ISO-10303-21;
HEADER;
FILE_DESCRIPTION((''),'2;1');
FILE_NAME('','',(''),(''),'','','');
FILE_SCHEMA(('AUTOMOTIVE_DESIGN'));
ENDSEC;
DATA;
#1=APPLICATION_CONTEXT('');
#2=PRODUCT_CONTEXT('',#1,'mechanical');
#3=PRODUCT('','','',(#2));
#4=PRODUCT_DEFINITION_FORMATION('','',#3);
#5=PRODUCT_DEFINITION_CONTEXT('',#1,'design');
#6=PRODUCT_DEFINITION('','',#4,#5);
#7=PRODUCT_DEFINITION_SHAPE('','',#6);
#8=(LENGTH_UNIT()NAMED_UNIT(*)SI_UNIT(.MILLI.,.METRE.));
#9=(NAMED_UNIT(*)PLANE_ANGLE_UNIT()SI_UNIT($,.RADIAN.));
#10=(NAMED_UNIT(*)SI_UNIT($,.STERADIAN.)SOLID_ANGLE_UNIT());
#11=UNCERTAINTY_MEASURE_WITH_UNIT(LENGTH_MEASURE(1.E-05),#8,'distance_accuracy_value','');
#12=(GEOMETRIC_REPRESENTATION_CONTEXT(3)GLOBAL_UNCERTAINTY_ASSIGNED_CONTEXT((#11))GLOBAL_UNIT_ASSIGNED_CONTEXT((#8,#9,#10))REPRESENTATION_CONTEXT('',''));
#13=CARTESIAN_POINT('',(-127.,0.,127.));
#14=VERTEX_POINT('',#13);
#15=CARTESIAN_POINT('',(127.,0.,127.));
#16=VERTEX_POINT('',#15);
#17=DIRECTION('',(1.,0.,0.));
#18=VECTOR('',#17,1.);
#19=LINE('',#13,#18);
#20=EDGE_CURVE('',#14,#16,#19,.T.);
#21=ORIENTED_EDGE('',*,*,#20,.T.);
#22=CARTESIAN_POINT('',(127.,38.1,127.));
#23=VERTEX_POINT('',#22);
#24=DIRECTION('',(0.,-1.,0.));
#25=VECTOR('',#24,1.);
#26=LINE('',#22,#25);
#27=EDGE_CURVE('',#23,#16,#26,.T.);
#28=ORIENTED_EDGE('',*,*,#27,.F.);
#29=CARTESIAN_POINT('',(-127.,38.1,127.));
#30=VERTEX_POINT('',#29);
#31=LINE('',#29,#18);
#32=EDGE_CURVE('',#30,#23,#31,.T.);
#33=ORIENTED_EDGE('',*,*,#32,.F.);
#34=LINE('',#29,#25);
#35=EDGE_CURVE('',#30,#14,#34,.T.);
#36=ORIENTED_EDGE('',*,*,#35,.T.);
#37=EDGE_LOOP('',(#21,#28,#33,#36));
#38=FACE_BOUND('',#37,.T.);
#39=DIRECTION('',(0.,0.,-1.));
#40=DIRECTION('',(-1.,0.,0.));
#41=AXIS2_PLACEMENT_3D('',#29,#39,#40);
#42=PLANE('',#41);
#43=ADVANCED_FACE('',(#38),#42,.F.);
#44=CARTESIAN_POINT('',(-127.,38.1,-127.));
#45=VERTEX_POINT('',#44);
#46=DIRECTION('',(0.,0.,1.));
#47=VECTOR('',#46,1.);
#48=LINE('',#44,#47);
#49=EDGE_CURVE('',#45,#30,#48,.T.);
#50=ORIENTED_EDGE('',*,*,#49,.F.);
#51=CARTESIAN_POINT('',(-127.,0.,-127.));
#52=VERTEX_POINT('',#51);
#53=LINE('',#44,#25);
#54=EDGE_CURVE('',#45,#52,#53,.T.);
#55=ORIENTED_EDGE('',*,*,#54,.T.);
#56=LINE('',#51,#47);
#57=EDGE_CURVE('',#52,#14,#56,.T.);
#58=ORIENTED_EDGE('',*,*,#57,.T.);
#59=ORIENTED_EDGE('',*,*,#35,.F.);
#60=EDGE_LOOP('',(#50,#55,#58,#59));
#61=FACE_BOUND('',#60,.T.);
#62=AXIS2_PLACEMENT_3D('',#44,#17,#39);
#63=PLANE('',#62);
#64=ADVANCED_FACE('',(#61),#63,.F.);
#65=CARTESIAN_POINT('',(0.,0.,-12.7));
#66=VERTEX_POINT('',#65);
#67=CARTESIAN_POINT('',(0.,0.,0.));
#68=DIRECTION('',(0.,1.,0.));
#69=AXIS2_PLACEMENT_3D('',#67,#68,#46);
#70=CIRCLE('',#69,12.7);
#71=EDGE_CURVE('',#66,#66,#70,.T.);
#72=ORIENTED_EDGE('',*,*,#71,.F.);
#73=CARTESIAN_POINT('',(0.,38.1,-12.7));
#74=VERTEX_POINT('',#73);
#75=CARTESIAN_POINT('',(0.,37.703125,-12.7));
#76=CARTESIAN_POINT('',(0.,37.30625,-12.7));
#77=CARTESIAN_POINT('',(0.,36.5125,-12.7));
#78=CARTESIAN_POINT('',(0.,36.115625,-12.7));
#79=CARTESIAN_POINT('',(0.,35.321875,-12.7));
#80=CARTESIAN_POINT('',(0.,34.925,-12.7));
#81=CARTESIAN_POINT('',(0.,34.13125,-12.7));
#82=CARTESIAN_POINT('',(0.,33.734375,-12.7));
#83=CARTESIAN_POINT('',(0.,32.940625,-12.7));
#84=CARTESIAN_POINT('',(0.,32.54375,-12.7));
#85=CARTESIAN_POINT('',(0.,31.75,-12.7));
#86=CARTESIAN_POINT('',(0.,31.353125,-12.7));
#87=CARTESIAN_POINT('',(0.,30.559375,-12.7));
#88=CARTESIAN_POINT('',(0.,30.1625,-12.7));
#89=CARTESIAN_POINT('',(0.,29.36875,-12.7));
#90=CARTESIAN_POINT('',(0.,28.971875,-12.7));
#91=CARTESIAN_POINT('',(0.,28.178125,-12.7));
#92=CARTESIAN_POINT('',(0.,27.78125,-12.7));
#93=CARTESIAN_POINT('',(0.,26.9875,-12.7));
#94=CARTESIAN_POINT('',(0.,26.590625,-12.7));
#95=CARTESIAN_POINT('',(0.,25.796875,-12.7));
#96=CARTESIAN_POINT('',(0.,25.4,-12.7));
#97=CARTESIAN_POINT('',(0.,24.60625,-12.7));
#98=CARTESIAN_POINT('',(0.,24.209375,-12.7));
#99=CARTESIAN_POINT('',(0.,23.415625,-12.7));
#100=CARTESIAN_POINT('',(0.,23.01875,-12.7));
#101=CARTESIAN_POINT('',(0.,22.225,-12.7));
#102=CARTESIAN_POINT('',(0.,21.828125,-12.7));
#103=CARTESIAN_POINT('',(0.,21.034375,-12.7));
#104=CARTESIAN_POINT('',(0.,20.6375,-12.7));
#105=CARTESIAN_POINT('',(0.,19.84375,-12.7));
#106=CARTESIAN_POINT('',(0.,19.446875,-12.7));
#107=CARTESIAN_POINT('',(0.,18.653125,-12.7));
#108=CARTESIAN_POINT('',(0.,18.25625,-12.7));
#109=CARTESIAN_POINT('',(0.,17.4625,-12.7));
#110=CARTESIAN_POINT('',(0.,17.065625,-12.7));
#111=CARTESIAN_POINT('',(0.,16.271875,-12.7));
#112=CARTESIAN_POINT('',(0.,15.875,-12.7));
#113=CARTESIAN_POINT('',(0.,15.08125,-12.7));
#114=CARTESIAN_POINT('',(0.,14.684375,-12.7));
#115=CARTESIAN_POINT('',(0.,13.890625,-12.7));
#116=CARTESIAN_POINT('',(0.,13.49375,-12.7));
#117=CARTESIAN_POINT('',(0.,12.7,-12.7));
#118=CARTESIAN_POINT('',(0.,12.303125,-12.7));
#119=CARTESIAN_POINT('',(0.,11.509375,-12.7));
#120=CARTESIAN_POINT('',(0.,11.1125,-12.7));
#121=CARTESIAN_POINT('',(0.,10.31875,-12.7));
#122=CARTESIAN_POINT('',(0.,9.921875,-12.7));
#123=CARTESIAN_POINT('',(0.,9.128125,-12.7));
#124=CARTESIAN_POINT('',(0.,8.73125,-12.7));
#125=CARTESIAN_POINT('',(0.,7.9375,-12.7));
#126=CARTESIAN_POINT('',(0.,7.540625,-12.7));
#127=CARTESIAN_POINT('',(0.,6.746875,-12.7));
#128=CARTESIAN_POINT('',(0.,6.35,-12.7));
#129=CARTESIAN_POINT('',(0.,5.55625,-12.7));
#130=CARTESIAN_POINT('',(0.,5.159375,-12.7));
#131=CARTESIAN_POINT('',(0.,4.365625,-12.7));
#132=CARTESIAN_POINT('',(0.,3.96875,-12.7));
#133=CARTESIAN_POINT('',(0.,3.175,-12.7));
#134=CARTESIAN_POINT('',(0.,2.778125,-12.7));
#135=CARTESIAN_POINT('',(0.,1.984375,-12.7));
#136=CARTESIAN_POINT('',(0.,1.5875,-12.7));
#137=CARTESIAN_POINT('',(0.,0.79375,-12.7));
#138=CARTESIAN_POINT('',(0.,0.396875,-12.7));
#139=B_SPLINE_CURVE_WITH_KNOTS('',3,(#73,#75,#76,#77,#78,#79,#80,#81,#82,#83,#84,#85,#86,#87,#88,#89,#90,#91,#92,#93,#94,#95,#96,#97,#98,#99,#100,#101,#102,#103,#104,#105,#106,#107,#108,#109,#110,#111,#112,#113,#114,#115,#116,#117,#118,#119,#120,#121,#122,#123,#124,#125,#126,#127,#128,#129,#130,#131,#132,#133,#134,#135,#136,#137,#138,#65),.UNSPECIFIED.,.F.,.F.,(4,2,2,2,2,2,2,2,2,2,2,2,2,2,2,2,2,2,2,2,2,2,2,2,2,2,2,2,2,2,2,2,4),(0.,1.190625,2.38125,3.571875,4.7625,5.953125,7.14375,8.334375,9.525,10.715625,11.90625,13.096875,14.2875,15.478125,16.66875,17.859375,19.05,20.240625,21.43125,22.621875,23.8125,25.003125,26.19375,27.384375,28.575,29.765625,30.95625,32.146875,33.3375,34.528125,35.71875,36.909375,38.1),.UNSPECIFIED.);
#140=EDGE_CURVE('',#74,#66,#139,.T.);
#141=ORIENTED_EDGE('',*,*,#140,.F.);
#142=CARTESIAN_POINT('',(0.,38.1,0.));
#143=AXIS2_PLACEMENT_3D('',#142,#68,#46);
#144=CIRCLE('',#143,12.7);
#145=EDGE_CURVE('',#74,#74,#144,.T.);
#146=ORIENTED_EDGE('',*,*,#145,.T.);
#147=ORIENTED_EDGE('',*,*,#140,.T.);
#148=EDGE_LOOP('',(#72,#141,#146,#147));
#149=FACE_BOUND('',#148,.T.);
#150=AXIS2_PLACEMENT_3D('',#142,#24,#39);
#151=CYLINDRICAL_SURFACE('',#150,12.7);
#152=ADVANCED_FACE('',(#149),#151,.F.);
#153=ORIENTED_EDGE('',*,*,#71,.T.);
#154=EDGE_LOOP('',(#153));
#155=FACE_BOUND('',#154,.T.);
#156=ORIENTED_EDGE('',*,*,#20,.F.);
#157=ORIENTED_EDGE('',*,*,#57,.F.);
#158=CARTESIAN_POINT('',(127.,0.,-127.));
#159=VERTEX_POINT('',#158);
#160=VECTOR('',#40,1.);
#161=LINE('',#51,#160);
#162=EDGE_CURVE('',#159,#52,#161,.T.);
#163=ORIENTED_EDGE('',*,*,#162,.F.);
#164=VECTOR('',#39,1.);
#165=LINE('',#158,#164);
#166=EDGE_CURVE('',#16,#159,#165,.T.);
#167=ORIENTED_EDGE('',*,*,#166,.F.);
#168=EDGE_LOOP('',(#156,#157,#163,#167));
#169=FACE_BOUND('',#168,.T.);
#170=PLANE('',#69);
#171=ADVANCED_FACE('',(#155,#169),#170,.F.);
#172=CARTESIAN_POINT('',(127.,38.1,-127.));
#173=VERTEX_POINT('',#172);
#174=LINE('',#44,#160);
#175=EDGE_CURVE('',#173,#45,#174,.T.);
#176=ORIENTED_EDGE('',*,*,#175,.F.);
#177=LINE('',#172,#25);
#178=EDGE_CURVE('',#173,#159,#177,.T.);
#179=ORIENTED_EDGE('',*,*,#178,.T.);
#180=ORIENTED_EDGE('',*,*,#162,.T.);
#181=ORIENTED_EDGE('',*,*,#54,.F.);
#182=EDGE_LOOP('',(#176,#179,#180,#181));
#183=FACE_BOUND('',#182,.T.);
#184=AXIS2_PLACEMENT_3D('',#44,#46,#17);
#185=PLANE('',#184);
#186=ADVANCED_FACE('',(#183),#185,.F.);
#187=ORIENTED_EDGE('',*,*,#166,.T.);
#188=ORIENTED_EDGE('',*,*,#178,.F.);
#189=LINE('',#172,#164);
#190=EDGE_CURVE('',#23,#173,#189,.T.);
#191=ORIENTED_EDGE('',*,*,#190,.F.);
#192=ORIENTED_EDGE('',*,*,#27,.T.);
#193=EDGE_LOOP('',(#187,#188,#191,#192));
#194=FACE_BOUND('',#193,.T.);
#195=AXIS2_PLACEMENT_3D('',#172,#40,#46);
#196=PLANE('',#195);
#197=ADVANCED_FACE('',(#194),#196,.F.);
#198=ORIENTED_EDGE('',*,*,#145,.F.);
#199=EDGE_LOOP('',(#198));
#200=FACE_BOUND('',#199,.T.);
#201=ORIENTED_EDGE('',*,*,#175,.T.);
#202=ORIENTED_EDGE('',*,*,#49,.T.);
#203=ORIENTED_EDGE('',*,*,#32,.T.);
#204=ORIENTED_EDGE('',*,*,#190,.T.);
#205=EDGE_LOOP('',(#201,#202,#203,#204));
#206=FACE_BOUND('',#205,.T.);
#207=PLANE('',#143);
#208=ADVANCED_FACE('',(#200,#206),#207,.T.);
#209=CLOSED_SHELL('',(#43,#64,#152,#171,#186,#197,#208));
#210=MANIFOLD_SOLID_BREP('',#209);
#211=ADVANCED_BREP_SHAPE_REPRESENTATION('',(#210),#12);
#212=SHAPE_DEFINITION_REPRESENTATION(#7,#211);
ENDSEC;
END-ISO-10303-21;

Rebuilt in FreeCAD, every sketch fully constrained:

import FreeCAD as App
import Part
import Sketcher
from FreeCAD import Vector
Q = App.Units.Quantity

doc = App.newDocument("Part")
params = doc.addObject("Spreadsheet::Sheet", "Params")
for row, (alias, value) in enumerate([
    ("sketch1_diameter", "1 in"),
    ("sketch1_width", "10 in"),
    ("pad1_length", "1.5 in"),
], start=1):
    params.set(f"A{row}", alias)
    params.set(f"B{row}", "=" + value)
    params.setAlias(f"B{row}", alias)

body = doc.addObject("PartDesign::Body", "Body")

sketch1 = doc.addObject("Sketcher::SketchObject", "Sketch")
body.addObject(sketch1)
sketch1.AttachmentSupport = (doc.XZ_Plane, [""])
sketch1.MapMode = "FlatFace"
sketch1.addGeometry([
    Part.LineSegment(Vector(-127, -127, 0), Vector(-127, 127, 0)),
    Part.LineSegment(Vector(-127, 127, 0), Vector(127, 127, 0)),
    Part.LineSegment(Vector(127, 127, 0), Vector(127, -127, 0)),
    Part.LineSegment(Vector(127, -127, 0), Vector(-127, -127, 0)),
    Part.Circle(Vector(0, 0, 0), Vector(0, 0, 1), 13),
], False)
sketch1.addConstraint([
    Sketcher.Constraint("Coincident", 0, 2, 1, 1),
    Sketcher.Constraint("Coincident", 1, 2, 2, 1),
    Sketcher.Constraint("Coincident", 2, 2, 3, 1),
    Sketcher.Constraint("Coincident", 3, 2, 0, 1),
    Sketcher.Constraint("Vertical", 0),
    Sketcher.Constraint("Horizontal", 1),
    Sketcher.Constraint("Vertical", 2),
    Sketcher.Constraint("Horizontal", 3),
    Sketcher.Constraint("Coincident", 4, 3, -1, 1),
    Sketcher.Constraint("Symmetric", 0, 2, 2, 2, -1, 1),
    Sketcher.Constraint("Equal", 3, 0),
    Sketcher.Constraint("Diameter", 4, Q("1 in")),
    Sketcher.Constraint("DistanceX", 1, 1, 1, 2, Q("10 in")),
])
sketch1.setExpression("Constraints[11]", "Params.sketch1_diameter")
sketch1.setExpression("Constraints[12]", "Params.sketch1_width")
pad1 = doc.addObject("PartDesign::Pad", "Pad")
body.addObject(pad1)
pad1.Profile = sketch1
pad1.setExpression("Length", "Params.pad1_length")
pad1.Reversed = True

doc.recompute()
